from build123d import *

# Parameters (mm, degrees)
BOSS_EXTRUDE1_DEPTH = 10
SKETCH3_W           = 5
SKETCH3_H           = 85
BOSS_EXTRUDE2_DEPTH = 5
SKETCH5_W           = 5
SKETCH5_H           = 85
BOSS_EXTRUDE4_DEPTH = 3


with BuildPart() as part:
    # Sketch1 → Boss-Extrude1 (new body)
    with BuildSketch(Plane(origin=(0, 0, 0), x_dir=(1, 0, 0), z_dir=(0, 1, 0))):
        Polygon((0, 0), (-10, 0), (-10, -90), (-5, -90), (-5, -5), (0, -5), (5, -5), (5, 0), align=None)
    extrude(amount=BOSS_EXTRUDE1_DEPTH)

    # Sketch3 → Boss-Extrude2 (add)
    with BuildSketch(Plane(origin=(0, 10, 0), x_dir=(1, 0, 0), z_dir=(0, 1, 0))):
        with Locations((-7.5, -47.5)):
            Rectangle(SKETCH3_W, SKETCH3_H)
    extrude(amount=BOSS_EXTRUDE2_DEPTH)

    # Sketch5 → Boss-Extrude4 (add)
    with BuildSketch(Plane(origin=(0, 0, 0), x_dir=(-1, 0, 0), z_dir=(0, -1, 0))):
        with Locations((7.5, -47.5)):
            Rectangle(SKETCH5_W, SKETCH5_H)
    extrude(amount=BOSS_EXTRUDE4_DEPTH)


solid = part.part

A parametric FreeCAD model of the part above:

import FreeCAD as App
import Part
import Sketcher
from FreeCAD import Vector

doc = App.newDocument("Part")
body = doc.addObject("PartDesign::Body", "Body")

# Sketch on XZ plane
sketch1 = body.newObject("Sketcher::SketchObject", "Sketch")
sketch1.AttachmentSupport = (doc.getObject("XZ_Plane"), [""])
sketch1.MapMode = "FlatFace"
sketch1.addGeometry(Part.LineSegment(Vector(-10, 0, 0), Vector(-10, 90, 0)), False)
sketch1.addGeometry(Part.LineSegment(Vector(-10, 90, 0), Vector(-5, 90, 0)), False)
sketch1.addGeometry(Part.LineSegment(Vector(-5, 90, 0), Vector(-5, 5, 0)), False)
sketch1.addGeometry(Part.LineSegment(Vector(-5, 5, 0), Vector(5, 5, 0)), False)
sketch1.addGeometry(Part.LineSegment(Vector(5, 5, 0), Vector(5, 0, 0)), False)
sketch1.addGeometry(Part.LineSegment(Vector(5, 0, 0), Vector(-10, 0, 0)), False)
sketch1.addConstraint(Sketcher.Constraint("Coincident", 0, 2, 1, 1))
sketch1.addConstraint(Sketcher.Constraint("Coincident", 1, 2, 2, 1))
sketch1.addConstraint(Sketcher.Constraint("Coincident", 2, 2, 3, 1))
sketch1.addConstraint(Sketcher.Constraint("Coincident", 3, 2, 4, 1))
sketch1.addConstraint(Sketcher.Constraint("Coincident", 4, 2, 5, 1))
sketch1.addConstraint(Sketcher.Constraint("Coincident", 5, 2, 0, 1))
sketch1.addConstraint(Sketcher.Constraint("Vertical", 0))
sketch1.addConstraint(Sketcher.Constraint("Horizontal", 1))
sketch1.addConstraint(Sketcher.Constraint("Vertical", 2))
sketch1.addConstraint(Sketcher.Constraint("Horizontal", 3))
sketch1.addConstraint(Sketcher.Constraint("Vertical", 4))
sketch1.addConstraint(Sketcher.Constraint("Horizontal", 5))
sketch1.addConstraint(Sketcher.Constraint("PointOnObject", 4, 2, -1))
sketch1.addConstraint(Sketcher.Constraint("Equal", 1, 4))
sketch1.addConstraint(Sketcher.Constraint("DistanceX", 1, 1, 1, 2, 5.0))
sketch1.addConstraint(Sketcher.Constraint("DistanceX", 3, 1, 3, 2, 10.0))
sketch1.addConstraint(Sketcher.Constraint("DistanceY", 0, 1, 0, 2, 90.0))
sketch1.addConstraint(Sketcher.Constraint("DistanceX", 0, 2, -1, 1, 10.0))
pad1 = body.newObject("PartDesign::Pad", "Pad")
pad1.Profile = sketch1
pad1.Length = 10
pad1.Reversed = True

# Sketch on XZ plane
sketch2 = body.newObject("Sketcher::SketchObject", "Sketch001")
sketch2.AttachmentSupport = (doc.getObject("XZ_Plane"), [""])
sketch2.MapMode = "FlatFace"
sketch2.AttachmentOffset = App.Placement(Vector(0, 0, -10), App.Rotation())
sketch2.addGeometry(Part.LineSegment(Vector(-10, 5, 0), Vector(-10, 90, 0)), False)
sketch2.addGeometry(Part.LineSegment(Vector(-10, 90, 0), Vector(-5, 90, 0)), False)
sketch2.addGeometry(Part.LineSegment(Vector(-5, 90, 0), Vector(-5, 5, 0)), False)
sketch2.addGeometry(Part.LineSegment(Vector(-5, 5, 0), Vector(-10, 5, 0)), False)
sketch2.addConstraint(Sketcher.Constraint("Coincident", 0, 2, 1, 1))
sketch2.addConstraint(Sketcher.Constraint("Coincident", 1, 2, 2, 1))
sketch2.addConstraint(Sketcher.Constraint("Coincident", 2, 2, 3, 1))
sketch2.addConstraint(Sketcher.Constraint("Coincident", 3, 2, 0, 1))
sketch2.addConstraint(Sketcher.Constraint("Vertical", 0))
sketch2.addConstraint(Sketcher.Constraint("Horizontal", 1))
sketch2.addConstraint(Sketcher.Constraint("Vertical", 2))
sketch2.addConstraint(Sketcher.Constraint("Horizontal", 3))
sketch2.addConstraint(Sketcher.Constraint("DistanceX", 1, 1, 1, 2, 5.0))
sketch2.addConstraint(Sketcher.Constraint("DistanceY", 0, 1, 0, 2, 85.0))
sketch2.addConstraint(Sketcher.Constraint("DistanceX", 0, 2, -1, 1, 10.0))
sketch2.addConstraint(Sketcher.Constraint("DistanceY", -1, 1, 0, 2, 90.0))
pad2 = body.newObject("PartDesign::Pad", "Pad001")
pad2.Profile = sketch2
pad2.Length = 5
pad2.Reversed = True

# Sketch on XZ plane
sketch3 = body.newObject("Sketcher::SketchObject", "Sketch002")
sketch3.AttachmentSupport = (doc.getObject("XZ_Plane"), [""])
sketch3.MapMode = "FlatFace"
sketch3.addGeometry(Part.LineSegment(Vector(-5, 5, 0), Vector(-5, 90, 0)), False)
sketch3.addGeometry(Part.LineSegment(Vector(-5, 90, 0), Vector(-10, 90, 0)), False)
sketch3.addGeometry(Part.LineSegment(Vector(-10, 90, 0), Vector(-10, 5, 0)), False)
sketch3.addGeometry(Part.LineSegment(Vector(-10, 5, 0), Vector(-5, 5, 0)), False)
sketch3.addConstraint(Sketcher.Constraint("Coincident", 0, 2, 1, 1))
sketch3.addConstraint(Sketcher.Constraint("Coincident", 1, 2, 2, 1))
sketch3.addConstraint(Sketcher.Constraint("Coincident", 2, 2, 3, 1))
sketch3.addConstraint(Sketcher.Constraint("Coincident", 3, 2, 0, 1))
sketch3.addConstraint(Sketcher.Constraint("Vertical", 0))
sketch3.addConstraint(Sketcher.Constraint("Horizontal", 1))
sketch3.addConstraint(Sketcher.Constraint("Vertical", 2))
sketch3.addConstraint(Sketcher.Constraint("Horizontal", 3))
sketch3.addConstraint(Sketcher.Constraint("DistanceX", 1, 2, 1, 1, 5.0))
sketch3.addConstraint(Sketcher.Constraint("DistanceY", 0, 1, 0, 2, 85.0))
sketch3.addConstraint(Sketcher.Constraint("DistanceX", 0, 2, -1, 1, 5.0))
sketch3.addConstraint(Sketcher.Constraint("DistanceY", -1, 1, 0, 2, 90.0))
pad3 = body.newObject("PartDesign::Pad", "Pad002")
pad3.Profile = sketch3
pad3.Length = 3

doc.recompute()
